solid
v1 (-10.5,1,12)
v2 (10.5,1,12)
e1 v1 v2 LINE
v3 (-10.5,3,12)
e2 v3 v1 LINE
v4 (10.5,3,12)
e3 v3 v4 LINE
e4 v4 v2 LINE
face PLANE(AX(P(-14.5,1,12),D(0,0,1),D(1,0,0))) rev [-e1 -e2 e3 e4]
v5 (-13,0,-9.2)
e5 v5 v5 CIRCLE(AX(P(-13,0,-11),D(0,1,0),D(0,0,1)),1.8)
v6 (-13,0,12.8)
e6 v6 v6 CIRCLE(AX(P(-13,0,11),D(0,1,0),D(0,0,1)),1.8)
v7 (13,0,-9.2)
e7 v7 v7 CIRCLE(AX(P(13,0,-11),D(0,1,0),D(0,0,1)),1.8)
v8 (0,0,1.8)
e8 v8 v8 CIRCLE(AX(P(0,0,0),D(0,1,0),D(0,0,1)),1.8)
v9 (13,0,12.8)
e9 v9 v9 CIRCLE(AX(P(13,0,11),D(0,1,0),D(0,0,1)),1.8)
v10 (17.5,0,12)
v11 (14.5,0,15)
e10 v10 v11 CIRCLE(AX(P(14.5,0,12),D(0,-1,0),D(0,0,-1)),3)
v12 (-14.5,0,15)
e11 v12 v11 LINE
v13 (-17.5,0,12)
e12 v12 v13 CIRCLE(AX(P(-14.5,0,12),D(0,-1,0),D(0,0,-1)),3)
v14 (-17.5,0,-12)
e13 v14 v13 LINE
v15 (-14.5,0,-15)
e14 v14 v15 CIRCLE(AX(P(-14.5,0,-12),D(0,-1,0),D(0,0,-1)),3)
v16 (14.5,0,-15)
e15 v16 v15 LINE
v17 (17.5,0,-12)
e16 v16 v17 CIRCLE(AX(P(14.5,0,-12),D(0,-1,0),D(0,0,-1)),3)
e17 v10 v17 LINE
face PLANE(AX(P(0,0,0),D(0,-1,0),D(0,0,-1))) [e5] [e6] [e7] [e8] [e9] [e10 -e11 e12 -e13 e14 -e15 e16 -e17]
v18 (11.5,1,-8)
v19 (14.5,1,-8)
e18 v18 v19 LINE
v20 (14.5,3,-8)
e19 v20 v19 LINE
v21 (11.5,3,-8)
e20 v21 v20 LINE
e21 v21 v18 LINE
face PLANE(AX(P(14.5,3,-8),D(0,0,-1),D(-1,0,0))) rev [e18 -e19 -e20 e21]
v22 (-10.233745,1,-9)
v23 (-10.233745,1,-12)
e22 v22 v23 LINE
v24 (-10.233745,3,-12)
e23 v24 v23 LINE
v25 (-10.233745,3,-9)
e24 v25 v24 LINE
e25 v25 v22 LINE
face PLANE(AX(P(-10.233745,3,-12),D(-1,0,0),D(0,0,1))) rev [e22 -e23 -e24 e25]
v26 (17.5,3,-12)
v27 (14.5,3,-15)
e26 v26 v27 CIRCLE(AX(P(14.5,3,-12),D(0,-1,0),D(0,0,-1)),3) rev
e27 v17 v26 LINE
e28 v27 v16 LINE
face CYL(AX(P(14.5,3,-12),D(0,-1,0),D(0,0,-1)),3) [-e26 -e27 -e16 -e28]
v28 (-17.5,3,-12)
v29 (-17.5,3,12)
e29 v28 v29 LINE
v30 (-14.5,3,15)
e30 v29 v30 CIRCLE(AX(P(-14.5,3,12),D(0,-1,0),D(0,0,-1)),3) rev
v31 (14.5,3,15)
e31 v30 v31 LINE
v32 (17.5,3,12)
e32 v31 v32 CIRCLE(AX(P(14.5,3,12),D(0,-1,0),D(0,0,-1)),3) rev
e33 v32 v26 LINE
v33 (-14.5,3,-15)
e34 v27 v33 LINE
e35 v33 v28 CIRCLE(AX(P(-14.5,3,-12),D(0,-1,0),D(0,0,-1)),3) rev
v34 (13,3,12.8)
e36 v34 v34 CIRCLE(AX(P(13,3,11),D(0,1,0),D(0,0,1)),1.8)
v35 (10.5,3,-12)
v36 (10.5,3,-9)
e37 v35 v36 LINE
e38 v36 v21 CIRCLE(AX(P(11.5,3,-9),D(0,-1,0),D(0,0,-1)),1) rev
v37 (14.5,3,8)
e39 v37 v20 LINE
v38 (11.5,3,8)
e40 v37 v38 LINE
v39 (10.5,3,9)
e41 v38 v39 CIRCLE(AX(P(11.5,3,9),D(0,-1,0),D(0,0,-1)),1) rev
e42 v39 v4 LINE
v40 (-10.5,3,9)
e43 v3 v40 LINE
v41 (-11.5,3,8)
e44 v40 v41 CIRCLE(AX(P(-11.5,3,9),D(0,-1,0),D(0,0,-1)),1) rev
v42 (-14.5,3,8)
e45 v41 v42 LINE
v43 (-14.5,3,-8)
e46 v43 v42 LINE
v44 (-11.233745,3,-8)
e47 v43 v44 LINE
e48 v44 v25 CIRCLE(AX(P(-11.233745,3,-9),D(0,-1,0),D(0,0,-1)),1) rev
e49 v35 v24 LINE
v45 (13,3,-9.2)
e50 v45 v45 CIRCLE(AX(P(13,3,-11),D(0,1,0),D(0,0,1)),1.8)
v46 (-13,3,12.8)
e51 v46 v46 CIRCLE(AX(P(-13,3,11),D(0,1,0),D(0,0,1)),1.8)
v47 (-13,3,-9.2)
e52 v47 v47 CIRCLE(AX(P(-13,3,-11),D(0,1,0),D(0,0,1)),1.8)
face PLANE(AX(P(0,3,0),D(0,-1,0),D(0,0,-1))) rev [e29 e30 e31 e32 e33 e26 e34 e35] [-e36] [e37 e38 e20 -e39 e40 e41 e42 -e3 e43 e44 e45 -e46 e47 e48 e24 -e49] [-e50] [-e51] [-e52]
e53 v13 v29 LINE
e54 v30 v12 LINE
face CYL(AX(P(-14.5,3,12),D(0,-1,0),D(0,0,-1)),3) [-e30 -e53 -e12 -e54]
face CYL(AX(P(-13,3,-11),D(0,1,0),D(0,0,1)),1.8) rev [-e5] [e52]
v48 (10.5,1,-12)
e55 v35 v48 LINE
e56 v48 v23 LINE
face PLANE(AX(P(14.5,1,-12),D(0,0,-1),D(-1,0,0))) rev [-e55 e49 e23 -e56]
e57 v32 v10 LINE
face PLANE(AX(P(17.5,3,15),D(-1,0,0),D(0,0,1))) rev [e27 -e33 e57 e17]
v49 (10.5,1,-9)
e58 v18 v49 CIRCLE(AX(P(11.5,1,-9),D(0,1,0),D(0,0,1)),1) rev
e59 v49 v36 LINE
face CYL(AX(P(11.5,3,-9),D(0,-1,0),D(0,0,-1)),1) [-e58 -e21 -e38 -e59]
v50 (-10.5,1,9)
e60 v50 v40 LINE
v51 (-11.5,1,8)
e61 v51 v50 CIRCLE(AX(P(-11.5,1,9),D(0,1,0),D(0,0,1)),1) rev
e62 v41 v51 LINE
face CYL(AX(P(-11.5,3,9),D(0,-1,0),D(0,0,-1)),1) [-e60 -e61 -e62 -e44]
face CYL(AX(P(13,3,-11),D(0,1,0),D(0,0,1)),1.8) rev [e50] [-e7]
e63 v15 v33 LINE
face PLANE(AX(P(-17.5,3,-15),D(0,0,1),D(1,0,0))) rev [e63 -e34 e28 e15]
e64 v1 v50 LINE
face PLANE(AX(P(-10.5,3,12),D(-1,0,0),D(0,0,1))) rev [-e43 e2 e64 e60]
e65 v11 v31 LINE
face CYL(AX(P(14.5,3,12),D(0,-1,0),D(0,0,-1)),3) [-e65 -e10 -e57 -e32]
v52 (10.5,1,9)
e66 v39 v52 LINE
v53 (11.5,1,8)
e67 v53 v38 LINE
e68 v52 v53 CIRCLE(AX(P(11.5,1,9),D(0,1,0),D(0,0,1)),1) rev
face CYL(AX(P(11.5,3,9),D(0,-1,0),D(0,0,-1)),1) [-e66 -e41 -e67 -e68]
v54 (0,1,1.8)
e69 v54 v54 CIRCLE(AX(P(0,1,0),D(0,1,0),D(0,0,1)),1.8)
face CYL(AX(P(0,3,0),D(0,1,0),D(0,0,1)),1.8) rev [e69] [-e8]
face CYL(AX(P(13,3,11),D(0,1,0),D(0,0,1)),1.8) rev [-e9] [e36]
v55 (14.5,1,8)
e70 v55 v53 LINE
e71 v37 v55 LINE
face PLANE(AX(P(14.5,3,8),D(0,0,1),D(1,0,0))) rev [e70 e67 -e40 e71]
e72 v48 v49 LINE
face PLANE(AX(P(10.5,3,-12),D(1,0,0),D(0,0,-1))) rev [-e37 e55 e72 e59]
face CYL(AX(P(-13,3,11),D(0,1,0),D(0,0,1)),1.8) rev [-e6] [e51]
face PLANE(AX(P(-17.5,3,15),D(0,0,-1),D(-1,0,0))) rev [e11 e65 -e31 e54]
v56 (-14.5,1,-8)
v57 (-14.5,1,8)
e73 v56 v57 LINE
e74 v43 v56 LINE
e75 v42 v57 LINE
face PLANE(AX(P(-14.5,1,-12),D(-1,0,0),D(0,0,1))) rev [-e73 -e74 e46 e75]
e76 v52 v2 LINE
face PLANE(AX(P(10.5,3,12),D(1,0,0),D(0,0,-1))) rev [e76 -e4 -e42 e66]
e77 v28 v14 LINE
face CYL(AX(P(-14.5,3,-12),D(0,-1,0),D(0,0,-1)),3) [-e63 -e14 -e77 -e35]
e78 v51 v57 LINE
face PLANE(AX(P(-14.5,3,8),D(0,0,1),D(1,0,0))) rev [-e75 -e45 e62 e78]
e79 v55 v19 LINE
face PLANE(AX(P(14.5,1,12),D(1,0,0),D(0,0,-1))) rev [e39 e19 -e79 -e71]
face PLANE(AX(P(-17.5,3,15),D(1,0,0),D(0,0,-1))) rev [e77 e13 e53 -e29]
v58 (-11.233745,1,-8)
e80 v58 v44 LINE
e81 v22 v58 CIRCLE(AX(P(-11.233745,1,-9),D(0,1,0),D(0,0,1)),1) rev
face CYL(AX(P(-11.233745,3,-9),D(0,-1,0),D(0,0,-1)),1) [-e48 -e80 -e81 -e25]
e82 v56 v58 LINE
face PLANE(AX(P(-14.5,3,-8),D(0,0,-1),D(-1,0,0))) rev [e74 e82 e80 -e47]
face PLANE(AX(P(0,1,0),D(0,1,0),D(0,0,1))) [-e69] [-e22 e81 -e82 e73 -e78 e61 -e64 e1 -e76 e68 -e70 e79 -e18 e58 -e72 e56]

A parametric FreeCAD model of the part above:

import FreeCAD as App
import Part
import Sketcher
from FreeCAD import Vector
Q = App.Units.Quantity


def edges_at(feature, points):
    """Names of the edges that pass closest to the given points."""
    edges = feature.Shape.Edges
    near = lambda p: min(range(len(edges)), key=lambda i: edges[i].distToShape(Part.Vertex(*p))[0])
    return sorted({f"Edge{near(p) + 1}" for p in points})


def add_polygon(sketch, points):
    """Adds a closed chain of lines whose ends are joined by coincident constraints."""
    first, n = sketch.GeometryCount, len(points)
    for a, b in zip(points, points[1:] + points[:1]):
        sketch.addGeometry(Part.LineSegment(App.Vector(*a, 0), App.Vector(*b, 0)), False)
    for i in range(n):
        sketch.addConstraint(Sketcher.Constraint("Coincident", first + i, 2, first + (i + 1) % n, 1))

doc = App.newDocument("Part")
body = doc.addObject("PartDesign::Body", "Body")

sketch1 = body.newObject("Sketcher::SketchObject", "Sketch")
sketch1.AttachmentSupport = (doc.getObject("XZ_Plane"), [""])
sketch1.MapMode = "FlatFace"
add_polygon(sketch1, [(-18, -15), (-18, 15), (18, 15), (18, -15)])
sketch1.addConstraint(Sketcher.Constraint("Vertical", 0))
sketch1.addConstraint(Sketcher.Constraint("Horizontal", 1))
sketch1.addConstraint(Sketcher.Constraint("Vertical", 2))
sketch1.addConstraint(Sketcher.Constraint("Horizontal", 3))
sketch1.addConstraint(Sketcher.Constraint("Symmetric", 0, 2, 2, 2, -1, 1))
sketch1.addConstraint(Sketcher.Constraint("DistanceX", 1, 1, 1, 2, Q("35 mm")))
sketch1.addConstraint(Sketcher.Constraint("DistanceY", 0, 1, 0, 2, Q("30 mm")))
pad1 = body.newObject("PartDesign::Pad", "Pad")
pad1.Profile = sketch1
pad1.Length = 3
pad1.Reversed = True

sketch2 = body.newObject("Sketcher::SketchObject", "Sketch001")
sketch2.AttachmentSupport = (doc.getObject("XZ_Plane"), [""])
sketch2.MapMode = "FlatFace"
sketch2.AttachmentOffset = App.Placement(Vector(0, 0, -3), App.Rotation())
add_polygon(sketch2, [(-14, -12), (-14, 12), (14, 12), (14, -12)])
sketch2.addConstraint(Sketcher.Constraint("Vertical", 0))
sketch2.addConstraint(Sketcher.Constraint("Horizontal", 1))
sketch2.addConstraint(Sketcher.Constraint("Vertical", 2))
sketch2.addConstraint(Sketcher.Constraint("Horizontal", 3))
sketch2.addConstraint(Sketcher.Constraint("Symmetric", 0, 2, 2, 2, -1, 1))
sketch2.addConstraint(Sketcher.Constraint("DistanceX", 1, 1, 1, 2, Q("29 mm")))
sketch2.addConstraint(Sketcher.Constraint("DistanceY", 0, 1, 0, 2, Q("24 mm")))
pocket1 = body.newObject("PartDesign::Pocket", "Pocket")
pocket1.Profile = sketch2
pocket1.Length = 2
pocket1.Reversed = True

sketch3 = body.newObject("Sketcher::SketchObject", "Sketch002")
sketch3.AttachmentSupport = (doc.getObject("XZ_Plane"), [""])
sketch3.MapMode = "FlatFace"
sketch3.AttachmentOffset = App.Placement(Vector(0, 0, -1), App.Rotation())
add_polygon(sketch3, [(-14.5, -12), (-14.5, -8), (-10.2, -8), (-10.2, -12)])
add_polygon(sketch3, [(10.5, -12), (10.5, -8), (14.5, -8), (14.5, -12)])
add_polygon(sketch3, [(10.5, 8), (10.5, 12), (14.5, 12), (14.5, 8)])
add_polygon(sketch3, [(-14.5, 8), (-14.5, 12), (-10.5, 12), (-10.5, 8)])
sketch3.addConstraint(Sketcher.Constraint("Vertical", 0))
sketch3.addConstraint(Sketcher.Constraint("Horizontal", 1))
sketch3.addConstraint(Sketcher.Constraint("Vertical", 2))
sketch3.addConstraint(Sketcher.Constraint("Horizontal", 3))
sketch3.addConstraint(Sketcher.Constraint("Vertical", 4))
sketch3.addConstraint(Sketcher.Constraint("Horizontal", 5))
sketch3.addConstraint(Sketcher.Constraint("Vertical", 6))
sketch3.addConstraint(Sketcher.Constraint("Horizontal", 7))
sketch3.addConstraint(Sketcher.Constraint("Vertical", 8))
sketch3.addConstraint(Sketcher.Constraint("Horizontal", 9))
sketch3.addConstraint(Sketcher.Constraint("Vertical", 10))
sketch3.addConstraint(Sketcher.Constraint("Horizontal", 11))
sketch3.addConstraint(Sketcher.Constraint("Vertical", 12))
sketch3.addConstraint(Sketcher.Constraint("Horizontal", 13))
sketch3.addConstraint(Sketcher.Constraint("Vertical", 14))
sketch3.addConstraint(Sketcher.Constraint("Horizontal", 15))
sketch3.addConstraint(Sketcher.Constraint("Symmetric", 3, 2, 9, 2, -1, 1))
sketch3.addConstraint(Sketcher.Constraint("Symmetric", 6, 2, 12, 2, -1, 1))
sketch3.addConstraint(Sketcher.Constraint("Symmetric", 4, 2, 14, 2, -1, 1))
sketch3.addConstraint(Sketcher.Constraint("Symmetric", 0, 2, 5, 2, -2))
sketch3.addConstraint(Sketcher.Constraint("Symmetric", 8, 2, 13, 2, -2))
sketch3.addConstraint(Sketcher.Constraint("Horizontal", 11, 2, 14, 2))
sketch3.addConstraint(Sketcher.Constraint("Equal", 15, 0))
sketch3.addConstraint(Sketcher.Constraint("DistanceX", 5, 1, 5, 2, Q("4 mm")))
sketch3.addConstraint(Sketcher.Constraint("DistanceY", 0, 2, -1, 1, Q("8 mm")))
sketch3.addConstraint(Sketcher.Constraint("DistanceX", 0, 2, 4, 2, Q("25 mm")))
sketch3.addConstraint(Sketcher.Constraint("DistanceX", 1, 1, 1, 2, Q("4.266255 mm")))
pad2 = body.newObject("PartDesign::Pad", "Pad001")
pad2.Profile = sketch3
pad2.Length = 2
pad2.Reversed = True

sketch4 = body.newObject("Sketcher::SketchObject", "Sketch003")
sketch4.AttachmentSupport = (doc.getObject("XZ_Plane"), [""])
sketch4.MapMode = "FlatFace"
sketch4.AttachmentOffset = App.Placement(Vector(0, 0, -3), App.Rotation())
sketch4.addGeometry(Part.Circle(Vector(0, 0, 0), Vector(0, 0, 1), 1.8), False)
sketch4.addGeometry(Part.Circle(Vector(13, -11, 0), Vector(0, 0, 1), 1.8), False)
sketch4.addGeometry(Part.Circle(Vector(-13, 11, 0), Vector(0, 0, 1), 1.8), False)
sketch4.addGeometry(Part.Circle(Vector(-13, -11, 0), Vector(0, 0, 1), 1.8), False)
sketch4.addGeometry(Part.Circle(Vector(13, 11, 0), Vector(0, 0, 1), 1.8), False)
sketch4.addConstraint(Sketcher.Constraint("Coincident", 0, 3, -1, 1))
sketch4.addConstraint(Sketcher.Constraint("Equal", 0, 1))
sketch4.addConstraint(Sketcher.Constraint("Equal", 1, 2))
sketch4.addConstraint(Sketcher.Constraint("Equal", 2, 3))
sketch4.addConstraint(Sketcher.Constraint("Equal", 3, 4))
sketch4.addConstraint(Sketcher.Constraint("Symmetric", 1, 3, 2, 3, -1, 1))
sketch4.addConstraint(Sketcher.Constraint("Symmetric", 3, 3, 4, 3, -1, 1))
sketch4.addConstraint(Sketcher.Constraint("Symmetric", 1, 3, 3, 3, -2))
sketch4.addConstraint(Sketcher.Constraint("Diameter", 0, Q("3.6 mm")))
sketch4.addConstraint(Sketcher.Constraint("DistanceX", -1, 1, 1, 3, Q("13 mm")))
sketch4.addConstraint(Sketcher.Constraint("DistanceY", 1, 3, -1, 1, Q("11 mm")))
doc.recompute()
hole = body.newObject("PartDesign::Hole", "Hole")
hole.Profile = sketch4
hole.ThreadType = "None"
hole.Diameter = 3.6
hole.DepthType = "ThroughAll"
hole.Reversed = True
doc.recompute()

fillet = body.newObject("PartDesign::Fillet", "Fillet")
fillet.Base = (hole, edges_at(hole, [
    (17.5, 1.5, 15),
    (-17.5, 1.5, 15),
    (-17.5, 1.5, -15),
    (17.5, 1.5, -15),
]))
fillet.Radius = 3
doc.recompute()

fillet2 = body.newObject("PartDesign::Fillet", "Fillet001")
fillet2.Base = (fillet, edges_at(fillet, [
    (-10.234, 2, -8),
    (10.5, 2, -8),
    (10.5, 2, 8),
    (-10.5, 2, 8),
]))
fillet2.Radius = 1

doc.recompute()
